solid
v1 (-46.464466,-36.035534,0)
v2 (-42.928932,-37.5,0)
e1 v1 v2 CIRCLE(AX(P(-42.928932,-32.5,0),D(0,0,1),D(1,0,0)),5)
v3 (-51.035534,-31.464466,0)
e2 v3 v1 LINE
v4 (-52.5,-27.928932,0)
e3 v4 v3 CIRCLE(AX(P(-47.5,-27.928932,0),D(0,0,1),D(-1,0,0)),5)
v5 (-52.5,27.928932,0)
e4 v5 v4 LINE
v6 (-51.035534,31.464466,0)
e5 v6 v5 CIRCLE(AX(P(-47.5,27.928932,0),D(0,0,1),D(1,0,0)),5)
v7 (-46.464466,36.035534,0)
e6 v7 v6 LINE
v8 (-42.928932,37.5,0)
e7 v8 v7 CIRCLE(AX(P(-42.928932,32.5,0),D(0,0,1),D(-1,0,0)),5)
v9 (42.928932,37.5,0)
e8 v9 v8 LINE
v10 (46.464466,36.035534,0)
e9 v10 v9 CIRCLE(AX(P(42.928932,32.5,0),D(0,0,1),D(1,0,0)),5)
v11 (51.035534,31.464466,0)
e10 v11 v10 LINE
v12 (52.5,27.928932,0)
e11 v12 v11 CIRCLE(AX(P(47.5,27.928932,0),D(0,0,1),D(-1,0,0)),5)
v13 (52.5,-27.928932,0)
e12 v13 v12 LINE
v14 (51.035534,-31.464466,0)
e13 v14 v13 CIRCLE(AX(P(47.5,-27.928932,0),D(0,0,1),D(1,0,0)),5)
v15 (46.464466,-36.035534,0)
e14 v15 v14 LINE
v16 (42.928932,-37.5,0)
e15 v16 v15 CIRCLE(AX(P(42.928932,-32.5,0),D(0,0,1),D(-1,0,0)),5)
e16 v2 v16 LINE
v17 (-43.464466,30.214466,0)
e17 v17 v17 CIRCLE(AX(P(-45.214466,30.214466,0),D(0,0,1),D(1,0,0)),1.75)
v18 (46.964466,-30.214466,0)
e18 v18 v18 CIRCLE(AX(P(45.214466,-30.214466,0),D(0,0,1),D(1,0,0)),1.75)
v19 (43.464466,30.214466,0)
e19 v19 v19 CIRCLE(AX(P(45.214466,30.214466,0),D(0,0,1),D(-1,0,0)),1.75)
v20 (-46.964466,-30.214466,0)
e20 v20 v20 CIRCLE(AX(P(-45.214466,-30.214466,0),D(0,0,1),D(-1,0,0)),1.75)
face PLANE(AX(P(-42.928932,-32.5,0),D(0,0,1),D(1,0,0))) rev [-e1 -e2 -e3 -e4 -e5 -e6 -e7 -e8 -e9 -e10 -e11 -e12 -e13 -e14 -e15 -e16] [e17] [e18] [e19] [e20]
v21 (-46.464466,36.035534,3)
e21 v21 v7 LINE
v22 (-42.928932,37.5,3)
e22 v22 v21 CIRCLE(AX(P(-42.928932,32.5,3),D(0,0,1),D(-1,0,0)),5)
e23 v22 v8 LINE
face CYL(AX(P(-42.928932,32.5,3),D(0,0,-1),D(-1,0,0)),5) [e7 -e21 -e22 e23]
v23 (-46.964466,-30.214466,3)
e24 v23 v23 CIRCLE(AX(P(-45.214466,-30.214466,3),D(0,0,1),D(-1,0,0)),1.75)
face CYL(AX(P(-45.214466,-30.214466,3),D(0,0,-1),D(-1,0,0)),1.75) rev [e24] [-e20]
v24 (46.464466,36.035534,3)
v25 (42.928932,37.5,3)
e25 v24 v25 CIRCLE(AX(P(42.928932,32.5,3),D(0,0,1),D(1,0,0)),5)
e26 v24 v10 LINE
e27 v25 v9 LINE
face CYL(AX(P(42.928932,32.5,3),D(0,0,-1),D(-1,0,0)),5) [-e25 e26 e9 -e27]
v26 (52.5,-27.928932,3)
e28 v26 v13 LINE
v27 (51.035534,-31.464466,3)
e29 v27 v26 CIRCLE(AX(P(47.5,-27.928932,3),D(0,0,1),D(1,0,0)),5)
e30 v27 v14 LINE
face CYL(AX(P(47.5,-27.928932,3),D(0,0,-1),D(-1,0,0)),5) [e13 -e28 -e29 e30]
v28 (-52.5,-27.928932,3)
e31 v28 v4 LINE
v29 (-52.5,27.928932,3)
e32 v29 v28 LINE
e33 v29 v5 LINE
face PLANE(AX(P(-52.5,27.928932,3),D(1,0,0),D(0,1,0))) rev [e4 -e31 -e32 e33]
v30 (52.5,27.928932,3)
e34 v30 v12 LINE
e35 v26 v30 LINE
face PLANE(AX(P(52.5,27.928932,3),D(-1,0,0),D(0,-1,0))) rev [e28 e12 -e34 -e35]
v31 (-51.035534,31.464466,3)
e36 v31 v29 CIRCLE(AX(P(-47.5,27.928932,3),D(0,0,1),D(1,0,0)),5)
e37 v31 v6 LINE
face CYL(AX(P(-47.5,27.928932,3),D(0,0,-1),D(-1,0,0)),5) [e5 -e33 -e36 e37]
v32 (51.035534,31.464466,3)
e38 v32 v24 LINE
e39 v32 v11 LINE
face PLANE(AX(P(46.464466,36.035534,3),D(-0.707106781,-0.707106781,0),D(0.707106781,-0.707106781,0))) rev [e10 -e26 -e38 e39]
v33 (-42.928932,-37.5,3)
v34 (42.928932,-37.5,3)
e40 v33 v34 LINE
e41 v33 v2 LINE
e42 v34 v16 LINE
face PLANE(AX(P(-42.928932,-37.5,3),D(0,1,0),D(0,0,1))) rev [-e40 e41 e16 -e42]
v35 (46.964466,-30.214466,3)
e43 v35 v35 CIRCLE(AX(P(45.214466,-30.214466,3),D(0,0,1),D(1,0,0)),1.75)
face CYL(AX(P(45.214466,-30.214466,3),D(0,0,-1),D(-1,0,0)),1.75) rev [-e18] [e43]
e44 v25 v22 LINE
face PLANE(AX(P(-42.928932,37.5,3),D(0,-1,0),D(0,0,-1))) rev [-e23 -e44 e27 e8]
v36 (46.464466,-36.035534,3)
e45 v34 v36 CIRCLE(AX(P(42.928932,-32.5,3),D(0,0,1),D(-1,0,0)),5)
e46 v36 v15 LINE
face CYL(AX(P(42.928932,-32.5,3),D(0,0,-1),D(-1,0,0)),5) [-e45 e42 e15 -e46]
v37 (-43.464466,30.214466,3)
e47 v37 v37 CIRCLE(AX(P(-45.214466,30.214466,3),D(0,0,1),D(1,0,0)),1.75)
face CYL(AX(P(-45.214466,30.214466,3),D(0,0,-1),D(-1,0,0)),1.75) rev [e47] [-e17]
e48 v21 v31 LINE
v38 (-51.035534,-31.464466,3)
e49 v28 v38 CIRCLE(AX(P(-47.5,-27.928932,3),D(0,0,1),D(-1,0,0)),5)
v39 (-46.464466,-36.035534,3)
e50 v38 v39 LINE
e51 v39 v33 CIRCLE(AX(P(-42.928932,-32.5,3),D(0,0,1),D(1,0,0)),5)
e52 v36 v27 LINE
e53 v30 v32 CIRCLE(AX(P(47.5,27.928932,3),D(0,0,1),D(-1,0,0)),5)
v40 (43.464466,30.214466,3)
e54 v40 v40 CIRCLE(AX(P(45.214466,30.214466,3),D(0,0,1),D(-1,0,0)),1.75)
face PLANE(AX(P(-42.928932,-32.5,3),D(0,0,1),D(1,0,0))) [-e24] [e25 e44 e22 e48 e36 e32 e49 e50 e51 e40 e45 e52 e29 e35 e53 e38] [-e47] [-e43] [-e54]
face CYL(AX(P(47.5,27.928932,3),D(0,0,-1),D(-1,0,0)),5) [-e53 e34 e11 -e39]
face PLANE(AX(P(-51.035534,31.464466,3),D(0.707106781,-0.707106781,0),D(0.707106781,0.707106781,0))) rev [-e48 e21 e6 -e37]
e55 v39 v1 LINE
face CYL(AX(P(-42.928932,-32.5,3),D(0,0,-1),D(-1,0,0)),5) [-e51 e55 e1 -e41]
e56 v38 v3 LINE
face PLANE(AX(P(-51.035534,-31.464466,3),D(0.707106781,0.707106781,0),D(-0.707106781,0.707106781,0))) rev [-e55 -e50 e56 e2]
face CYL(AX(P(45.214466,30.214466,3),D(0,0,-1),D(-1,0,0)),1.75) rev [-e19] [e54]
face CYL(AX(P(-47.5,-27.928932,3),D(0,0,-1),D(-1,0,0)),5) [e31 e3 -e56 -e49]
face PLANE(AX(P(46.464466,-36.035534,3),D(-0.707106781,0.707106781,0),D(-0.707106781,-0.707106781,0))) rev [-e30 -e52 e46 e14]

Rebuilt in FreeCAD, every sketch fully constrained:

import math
import FreeCAD as App
import Part
import Sketcher
from FreeCAD import Vector
Q = App.Units.Quantity

doc = App.newDocument("Part")
params = doc.addObject("Spreadsheet::Sheet", "Params")
for row, (alias, value) in enumerate([
    ("sketch1_radius", "5 mm"),
    ("sketch1_diameter", "3.5 mm"),
    ("pad1_length", "3 mm"),
], start=1):
    params.set(f"A{row}", alias)
    params.set(f"B{row}", "=" + value)
    params.setAlias(f"B{row}", alias)

body = doc.addObject("PartDesign::Body", "Body")

sketch1 = doc.addObject("Sketcher::SketchObject", "Sketch")
body.addObject(sketch1)
sketch1.AttachmentSupport = (doc.XY_Plane, [""])
sketch1.MapMode = "FlatFace"
sketch1.addGeometry(Part.LineSegment(Vector(-46.5, 36, 0), Vector(-51, 31.5, 0)), False)
sketch1.addGeometry(Part.ArcOfCircle(Part.Circle(Vector(-47.5, 27.9, 0), Vector(0, 0, 1), 5), math.radians(135), math.radians(180)), False)
sketch1.addGeometry(Part.LineSegment(Vector(-52.5, 27.9, 0), Vector(-52.5, -27.9, 0)), False)
sketch1.addGeometry(Part.ArcOfCircle(Part.Circle(Vector(-47.5, -27.9, 0), Vector(0, 0, 1), 5), math.radians(180), math.radians(225)), False)
sketch1.addGeometry(Part.LineSegment(Vector(-51, -31.5, 0), Vector(-46.5, -36, 0)), False)
sketch1.addGeometry(Part.ArcOfCircle(Part.Circle(Vector(-42.9, -32.5, 0), Vector(0, 0, 1), 5), math.radians(-135), math.radians(-90)), False)
sketch1.addGeometry(Part.LineSegment(Vector(-42.9, -37.5, 0), Vector(42.9, -37.5, 0)), False)
sketch1.addGeometry(Part.ArcOfCircle(Part.Circle(Vector(42.9, -32.5, 0), Vector(0, 0, 1), 5), math.radians(-90), math.radians(-45)), False)
sketch1.addGeometry(Part.LineSegment(Vector(46.5, -36, 0), Vector(51, -31.5, 0)), False)
sketch1.addGeometry(Part.ArcOfCircle(Part.Circle(Vector(47.5, -27.9, 0), Vector(0, 0, 1), 5), math.radians(-45), math.radians(0)), False)
sketch1.addGeometry(Part.LineSegment(Vector(52.5, -27.9, 0), Vector(52.5, 27.9, 0)), False)
sketch1.addGeometry(Part.ArcOfCircle(Part.Circle(Vector(47.5, 27.9, 0), Vector(0, 0, 1), 5), math.radians(0), math.radians(45)), False)
sketch1.addGeometry(Part.LineSegment(Vector(51, 31.5, 0), Vector(46.5, 36, 0)), False)
sketch1.addGeometry(Part.ArcOfCircle(Part.Circle(Vector(42.9, 32.5, 0), Vector(0, 0, 1), 5), math.radians(45), math.radians(90)), False)
sketch1.addGeometry(Part.LineSegment(Vector(42.9, 37.5, 0), Vector(-42.9, 37.5, 0)), False)
sketch1.addGeometry(Part.ArcOfCircle(Part.Circle(Vector(-42.9, 32.5, 0), Vector(0, 0, 1), 5), math.radians(90), math.radians(135)), False)
sketch1.addGeometry(Part.Circle(Vector(45.2, -30.2, 0), Vector(0, 0, 1), 1.8), False)
sketch1.addGeometry(Part.Circle(Vector(-45.2, -30.2, 0), Vector(0, 0, 1), 1.8), False)
sketch1.addGeometry(Part.Circle(Vector(45.2, 30.2, 0), Vector(0, 0, 1), 1.8), False)
sketch1.addGeometry(Part.Circle(Vector(-45.2, 30.2, 0), Vector(0, 0, 1), 1.8), False)
sketch1.addConstraint(Sketcher.Constraint("Tangent", 0, 2, 1, 1))
sketch1.addConstraint(Sketcher.Constraint("Tangent", 1, 2, 2, 1))
sketch1.addConstraint(Sketcher.Constraint("Tangent", 2, 2, 3, 1))
sketch1.addConstraint(Sketcher.Constraint("Tangent", 3, 2, 4, 1))
sketch1.addConstraint(Sketcher.Constraint("Tangent", 4, 2, 5, 1))
sketch1.addConstraint(Sketcher.Constraint("Tangent", 5, 2, 6, 1))
sketch1.addConstraint(Sketcher.Constraint("Tangent", 6, 2, 7, 1))
sketch1.addConstraint(Sketcher.Constraint("Tangent", 7, 2, 8, 1))
sketch1.addConstraint(Sketcher.Constraint("Tangent", 8, 2, 9, 1))
sketch1.addConstraint(Sketcher.Constraint("Tangent", 9, 2, 10, 1))
sketch1.addConstraint(Sketcher.Constraint("Tangent", 10, 2, 11, 1))
sketch1.addConstraint(Sketcher.Constraint("Tangent", 11, 2, 12, 1))
sketch1.addConstraint(Sketcher.Constraint("Tangent", 12, 2, 13, 1))
sketch1.addConstraint(Sketcher.Constraint("Tangent", 13, 2, 14, 1))
sketch1.addConstraint(Sketcher.Constraint("Tangent", 14, 2, 15, 1))
sketch1.addConstraint(Sketcher.Constraint("Tangent", 15, 2, 0, 1))
sketch1.addConstraint(Sketcher.Constraint("Vertical", 2))
sketch1.addConstraint(Sketcher.Constraint("Horizontal", 6))
sketch1.addConstraint(Sketcher.Constraint("Vertical", 10))
sketch1.addConstraint(Sketcher.Constraint("Horizontal", 14))
sketch1.addConstraint(Sketcher.Constraint("Equal", 1, 3))
sketch1.addConstraint(Sketcher.Constraint("Equal", 3, 5))
sketch1.addConstraint(Sketcher.Constraint("Equal", 5, 7))
sketch1.addConstraint(Sketcher.Constraint("Equal", 7, 9))
sketch1.addConstraint(Sketcher.Constraint("Equal", 9, 11))
sketch1.addConstraint(Sketcher.Constraint("Equal", 11, 13))
sketch1.addConstraint(Sketcher.Constraint("Equal", 13, 15))
sketch1.addConstraint(Sketcher.Constraint("Equal", 16, 17))
sketch1.addConstraint(Sketcher.Constraint("Equal", 17, 18))
sketch1.addConstraint(Sketcher.Constraint("Equal", 18, 19))
sketch1.addConstraint(Sketcher.Constraint("Symmetric", 1, 3, 9, 3, -1, 1))
sketch1.addConstraint(Sketcher.Constraint("Symmetric", 5, 3, 13, 3, -1, 1))
sketch1.addConstraint(Sketcher.Constraint("Symmetric", 17, 3, 18, 3, -1, 1))
sketch1.addConstraint(Sketcher.Constraint("Symmetric", 16, 3, 19, 3, -1, 1))
sketch1.addConstraint(Sketcher.Constraint("Symmetric", 16, 3, 17, 3, -2))
sketch1.addConstraint(Sketcher.Constraint("Symmetric", 4, 2, 7, 2, -2))
sketch1.addConstraint(Sketcher.Constraint("Symmetric", 0, 2, 11, 2, -2))
sketch1.addConstraint(Sketcher.Constraint("Perpendicular", 0, 4))
sketch1.addConstraint(Sketcher.Constraint("Radius", 1, Q("5 mm")))
sketch1.addConstraint(Sketcher.Constraint("Diameter", 16, Q("3.5 mm")))
sketch1.addConstraint(Sketcher.Constraint("DistanceX", 3, 3, 9, 3, Q("95 mm")))
sketch1.addConstraint(Sketcher.Constraint("DistanceY", 7, 3, 13, 3, Q("65 mm")))
sketch1.addConstraint(Sketcher.Constraint("DistanceY", 19, 3, 0, 2, Q("1.25 mm")))
sketch1.addConstraint(Sketcher.Constraint("DistanceX", 4, 2, 17, 3, Q("1.25 mm")))
sketch1.addConstraint(Sketcher.Constraint("DistanceY", 16, 3, 11, 3, Q("58.143398 mm")))
sketch1.setExpression("Constraints[38]", "Params.sketch1_radius")
sketch1.setExpression("Constraints[39]", "Params.sketch1_diameter")
pad1 = doc.addObject("PartDesign::Pad", "Pad")
body.addObject(pad1)
pad1.Profile = sketch1
pad1.setExpression("Length", "Params.pad1_length")

doc.recompute()
